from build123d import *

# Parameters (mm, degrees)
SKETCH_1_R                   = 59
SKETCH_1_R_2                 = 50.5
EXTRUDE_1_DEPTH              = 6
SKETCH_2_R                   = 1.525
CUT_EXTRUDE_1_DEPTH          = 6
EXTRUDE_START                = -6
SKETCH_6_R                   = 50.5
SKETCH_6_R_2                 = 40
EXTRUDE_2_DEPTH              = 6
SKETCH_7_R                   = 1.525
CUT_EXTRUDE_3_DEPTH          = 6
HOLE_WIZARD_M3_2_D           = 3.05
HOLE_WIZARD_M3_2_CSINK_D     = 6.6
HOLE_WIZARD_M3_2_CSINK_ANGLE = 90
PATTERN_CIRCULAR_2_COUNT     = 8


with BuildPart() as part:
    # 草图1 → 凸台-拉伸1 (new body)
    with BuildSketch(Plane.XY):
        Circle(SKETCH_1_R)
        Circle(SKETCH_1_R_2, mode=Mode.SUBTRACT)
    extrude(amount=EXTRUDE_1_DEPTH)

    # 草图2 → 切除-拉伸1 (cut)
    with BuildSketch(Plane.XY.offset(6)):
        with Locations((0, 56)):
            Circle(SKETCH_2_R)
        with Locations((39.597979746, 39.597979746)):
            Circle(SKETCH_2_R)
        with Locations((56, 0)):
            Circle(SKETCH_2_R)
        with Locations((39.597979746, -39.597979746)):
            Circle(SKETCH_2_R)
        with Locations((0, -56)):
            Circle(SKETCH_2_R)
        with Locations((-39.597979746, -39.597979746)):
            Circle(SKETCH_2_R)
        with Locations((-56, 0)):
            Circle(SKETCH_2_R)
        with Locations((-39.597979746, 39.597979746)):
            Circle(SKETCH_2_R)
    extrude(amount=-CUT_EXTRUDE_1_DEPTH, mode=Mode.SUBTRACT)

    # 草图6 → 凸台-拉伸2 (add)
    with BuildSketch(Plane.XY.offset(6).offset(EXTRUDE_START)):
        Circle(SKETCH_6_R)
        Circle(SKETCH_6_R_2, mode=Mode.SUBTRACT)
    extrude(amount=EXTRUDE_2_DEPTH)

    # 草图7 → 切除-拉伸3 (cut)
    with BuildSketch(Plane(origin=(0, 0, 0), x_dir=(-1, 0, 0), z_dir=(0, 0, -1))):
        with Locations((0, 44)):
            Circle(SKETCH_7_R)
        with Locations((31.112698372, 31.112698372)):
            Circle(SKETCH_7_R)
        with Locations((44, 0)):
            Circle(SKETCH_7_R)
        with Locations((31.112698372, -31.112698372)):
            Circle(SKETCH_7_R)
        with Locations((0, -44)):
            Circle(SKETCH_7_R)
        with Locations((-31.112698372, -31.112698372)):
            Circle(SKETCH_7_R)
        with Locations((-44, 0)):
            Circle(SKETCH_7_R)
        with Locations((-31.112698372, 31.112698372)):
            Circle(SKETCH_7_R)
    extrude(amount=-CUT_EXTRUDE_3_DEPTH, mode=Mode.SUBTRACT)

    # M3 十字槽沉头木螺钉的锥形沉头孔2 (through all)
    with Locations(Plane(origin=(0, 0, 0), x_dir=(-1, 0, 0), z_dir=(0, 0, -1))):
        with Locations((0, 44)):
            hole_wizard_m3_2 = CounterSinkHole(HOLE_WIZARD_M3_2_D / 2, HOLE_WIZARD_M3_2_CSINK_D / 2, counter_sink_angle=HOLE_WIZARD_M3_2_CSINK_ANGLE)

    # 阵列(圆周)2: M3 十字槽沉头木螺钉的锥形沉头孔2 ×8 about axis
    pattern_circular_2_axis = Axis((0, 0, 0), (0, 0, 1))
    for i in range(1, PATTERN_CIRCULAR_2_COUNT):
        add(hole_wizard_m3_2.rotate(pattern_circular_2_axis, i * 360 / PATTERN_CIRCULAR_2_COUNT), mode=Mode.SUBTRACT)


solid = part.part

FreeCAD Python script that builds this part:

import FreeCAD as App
import Part
import Sketcher

V = App.Vector

doc = App.newDocument("Part")
body = doc.addObject("PartDesign::Body", "Body")

# Sketch on XY plane
sketch1 = body.newObject("Sketcher::SketchObject", "Sketch")
sketch1.AttachmentSupport = (doc.getObject("XY_Plane"), [""])
sketch1.MapMode = "FlatFace"
sketch1.addGeometry([
    Part.Circle(V(0, 0, 0), V(0, 0, 1), 59),
    Part.Circle(V(0, 0, 0), V(0, 0, 1), 50),
], False)
sketch1.addConstraint([
    Sketcher.Constraint("Coincident", 0, 3, -1, 1),
    Sketcher.Constraint("Coincident", 1, 3, -1, 1),
    Sketcher.Constraint("Diameter", 0, 118.0),
    Sketcher.Constraint("Diameter", 1, 101.0),
])
pad1 = body.newObject("PartDesign::Pad", "Pad")
pad1.Profile = sketch1
pad1.Length = 6

# Sketch on XY plane
sketch2 = body.newObject("Sketcher::SketchObject", "Sketch001")
sketch2.AttachmentSupport = (doc.getObject("XY_Plane"), [""])
sketch2.MapMode = "FlatFace"
sketch2.AttachmentOffset = App.Placement(V(0, 0, 6), App.Rotation())
sketch2.addGeometry([
    Part.Circle(V(0, 56, 0), V(0, 0, 1), 1.5),  # 0
    Part.Circle(V(39.6, 39.6, 0), V(0, 0, 1), 1.5),  # 1
    Part.Circle(V(56, 0, 0), V(0, 0, 1), 1.5),  # 2
    Part.Circle(V(39.6, -39.6, 0), V(0, 0, 1), 1.5),  # 3
    Part.Circle(V(0, -56, 0), V(0, 0, 1), 1.5),  # 4
    Part.Circle(V(-39.6, -39.6, 0), V(0, 0, 1), 1.5),  # 5
    Part.Circle(V(-56, 0, 0), V(0, 0, 1), 1.5),  # 6
    Part.Circle(V(-39.6, 39.6, 0), V(0, 0, 1), 1.5),  # 7
], False)
sketch2.addConstraint([
    Sketcher.Constraint("Equal", 0, 1),
    Sketcher.Constraint("Equal", 1, 2),
    Sketcher.Constraint("Equal", 2, 3),
    Sketcher.Constraint("Equal", 3, 4),
    Sketcher.Constraint("Equal", 4, 5),
    Sketcher.Constraint("Equal", 5, 6),
    Sketcher.Constraint("Equal", 6, 7),
    Sketcher.Constraint("Symmetric", 0, 3, 4, 3, -1, 1),
    Sketcher.Constraint("Symmetric", 1, 3, 5, 3, -1, 1),
    Sketcher.Constraint("Symmetric", 2, 3, 6, 3, -1, 1),
    Sketcher.Constraint("Symmetric", 3, 3, 7, 3, -1, 1),
    Sketcher.Constraint("Symmetric", 3, 3, 5, 3, -2),
    Sketcher.Constraint("PointOnObject", 0, 3, -2),
    Sketcher.Constraint("PointOnObject", 2, 3, -1),
    Sketcher.Constraint("Diameter", 0, 3.05),
    Sketcher.Constraint("DistanceY", -1, 1, 0, 3, 56.0),
    Sketcher.Constraint("DistanceX", -1, 1, 2, 3, 56.0),
    Sketcher.Constraint("DistanceX", -1, 1, 1, 3, 39.59798),
    Sketcher.Constraint("DistanceY", -1, 1, 1, 3, 39.59798),
])
pocket1 = body.newObject("PartDesign::Pocket", "Pocket")
pocket1.Profile = sketch2
pocket1.Length = 6

# Sketch on XY plane
sketch3 = body.newObject("Sketcher::SketchObject", "Sketch002")
sketch3.AttachmentSupport = (doc.getObject("XY_Plane"), [""])
sketch3.MapMode = "FlatFace"
sketch3.addGeometry([
    Part.Circle(V(0, 0, 0), V(0, 0, 1), 50),
    Part.Circle(V(0, 0, 0), V(0, 0, 1), 40),
], False)
sketch3.addConstraint([
    Sketcher.Constraint("Coincident", 0, 3, -1, 1),
    Sketcher.Constraint("Coincident", 1, 3, -1, 1),
    Sketcher.Constraint("Diameter", 0, 101.0),
    Sketcher.Constraint("Diameter", 1, 80.0),
])
pad2 = body.newObject("PartDesign::Pad", "Pad001")
pad2.Profile = sketch3
pad2.Length = 6

# Sketch on XY plane
sketch4 = body.newObject("Sketcher::SketchObject", "Sketch003")
sketch4.AttachmentSupport = (doc.getObject("XY_Plane"), [""])
sketch4.MapMode = "FlatFace"
sketch4.addGeometry([
    Part.Circle(V(0, 44, 0), V(0, 0, 1), 1.5),  # 0
    Part.Circle(V(-31.1, 31.1, 0), V(0, 0, 1), 1.5),  # 1
    Part.Circle(V(-44, 0, 0), V(0, 0, 1), 1.5),  # 2
    Part.Circle(V(-31.1, -31.1, 0), V(0, 0, 1), 1.5),  # 3
    Part.Circle(V(0, -44, 0), V(0, 0, 1), 1.5),  # 4
    Part.Circle(V(31.1, -31.1, 0), V(0, 0, 1), 1.5),  # 5
    Part.Circle(V(44, 0, 0), V(0, 0, 1), 1.5),  # 6
    Part.Circle(V(31.1, 31.1, 0), V(0, 0, 1), 1.5),  # 7
], False)
sketch4.addConstraint([
    Sketcher.Constraint("Equal", 0, 1),
    Sketcher.Constraint("Equal", 1, 2),
    Sketcher.Constraint("Equal", 2, 3),
    Sketcher.Constraint("Equal", 3, 4),
    Sketcher.Constraint("Equal", 4, 5),
    Sketcher.Constraint("Equal", 5, 6),
    Sketcher.Constraint("Equal", 6, 7),
    Sketcher.Constraint("Symmetric", 0, 3, 4, 3, -1, 1),
    Sketcher.Constraint("Symmetric", 1, 3, 5, 3, -1, 1),
    Sketcher.Constraint("Symmetric", 2, 3, 6, 3, -1, 1),
    Sketcher.Constraint("Symmetric", 3, 3, 7, 3, -1, 1),
    Sketcher.Constraint("Symmetric", 3, 3, 5, 3, -2),
    Sketcher.Constraint("PointOnObject", 0, 3, -2),
    Sketcher.Constraint("PointOnObject", 2, 3, -1),
    Sketcher.Constraint("Diameter", 0, 3.05),
    Sketcher.Constraint("DistanceY", -1, 1, 0, 3, 44.0),
    Sketcher.Constraint("DistanceX", 2, 3, -1, 1, 44.0),
    Sketcher.Constraint("DistanceX", 1, 3, -1, 1, 31.112698),
    Sketcher.Constraint("DistanceY", -1, 1, 1, 3, 31.112698),
])
pocket2 = body.newObject("PartDesign::Pocket", "Pocket001")
pocket2.Profile = sketch4
pocket2.Length = 6
pocket2.Reversed = True

# Sketch on XY plane
sketch5 = body.newObject("Sketcher::SketchObject", "Sketch004")
sketch5.AttachmentSupport = (doc.getObject("XY_Plane"), [""])
sketch5.MapMode = "FlatFace"
sketch5.addGeometry(Part.Circle(V(0, 44, 0), V(0, 0, 1), 1.5), False)
sketch5.addConstraint([
    Sketcher.Constraint("PointOnObject", 0, 3, -2),
    Sketcher.Constraint("Diameter", 0, 3.05),
    Sketcher.Constraint("DistanceY", -1, 1, 0, 3, 44.0),
])
doc.recompute()
hole = body.newObject("PartDesign::Hole", "Hole")
hole.Profile = sketch5
hole.ThreadType = "None"
hole.Diameter = 3.05
hole.DepthType = "ThroughAll"
hole.HoleCutType = "Countersink"
hole.HoleCutDiameter = 6.6
hole.HoleCutCountersinkAngle = 90
hole.Reversed = True
doc.recompute()

polarpattern = body.newObject("PartDesign::PolarPattern", "PolarPattern")
polarpattern.Originals = [hole]
polarpattern.Axis = (doc.getObject("Z_Axis"), [""])
polarpattern.Angle = 360
polarpattern.Occurrences = 8
body.Tip = polarpattern

doc.recompute()
